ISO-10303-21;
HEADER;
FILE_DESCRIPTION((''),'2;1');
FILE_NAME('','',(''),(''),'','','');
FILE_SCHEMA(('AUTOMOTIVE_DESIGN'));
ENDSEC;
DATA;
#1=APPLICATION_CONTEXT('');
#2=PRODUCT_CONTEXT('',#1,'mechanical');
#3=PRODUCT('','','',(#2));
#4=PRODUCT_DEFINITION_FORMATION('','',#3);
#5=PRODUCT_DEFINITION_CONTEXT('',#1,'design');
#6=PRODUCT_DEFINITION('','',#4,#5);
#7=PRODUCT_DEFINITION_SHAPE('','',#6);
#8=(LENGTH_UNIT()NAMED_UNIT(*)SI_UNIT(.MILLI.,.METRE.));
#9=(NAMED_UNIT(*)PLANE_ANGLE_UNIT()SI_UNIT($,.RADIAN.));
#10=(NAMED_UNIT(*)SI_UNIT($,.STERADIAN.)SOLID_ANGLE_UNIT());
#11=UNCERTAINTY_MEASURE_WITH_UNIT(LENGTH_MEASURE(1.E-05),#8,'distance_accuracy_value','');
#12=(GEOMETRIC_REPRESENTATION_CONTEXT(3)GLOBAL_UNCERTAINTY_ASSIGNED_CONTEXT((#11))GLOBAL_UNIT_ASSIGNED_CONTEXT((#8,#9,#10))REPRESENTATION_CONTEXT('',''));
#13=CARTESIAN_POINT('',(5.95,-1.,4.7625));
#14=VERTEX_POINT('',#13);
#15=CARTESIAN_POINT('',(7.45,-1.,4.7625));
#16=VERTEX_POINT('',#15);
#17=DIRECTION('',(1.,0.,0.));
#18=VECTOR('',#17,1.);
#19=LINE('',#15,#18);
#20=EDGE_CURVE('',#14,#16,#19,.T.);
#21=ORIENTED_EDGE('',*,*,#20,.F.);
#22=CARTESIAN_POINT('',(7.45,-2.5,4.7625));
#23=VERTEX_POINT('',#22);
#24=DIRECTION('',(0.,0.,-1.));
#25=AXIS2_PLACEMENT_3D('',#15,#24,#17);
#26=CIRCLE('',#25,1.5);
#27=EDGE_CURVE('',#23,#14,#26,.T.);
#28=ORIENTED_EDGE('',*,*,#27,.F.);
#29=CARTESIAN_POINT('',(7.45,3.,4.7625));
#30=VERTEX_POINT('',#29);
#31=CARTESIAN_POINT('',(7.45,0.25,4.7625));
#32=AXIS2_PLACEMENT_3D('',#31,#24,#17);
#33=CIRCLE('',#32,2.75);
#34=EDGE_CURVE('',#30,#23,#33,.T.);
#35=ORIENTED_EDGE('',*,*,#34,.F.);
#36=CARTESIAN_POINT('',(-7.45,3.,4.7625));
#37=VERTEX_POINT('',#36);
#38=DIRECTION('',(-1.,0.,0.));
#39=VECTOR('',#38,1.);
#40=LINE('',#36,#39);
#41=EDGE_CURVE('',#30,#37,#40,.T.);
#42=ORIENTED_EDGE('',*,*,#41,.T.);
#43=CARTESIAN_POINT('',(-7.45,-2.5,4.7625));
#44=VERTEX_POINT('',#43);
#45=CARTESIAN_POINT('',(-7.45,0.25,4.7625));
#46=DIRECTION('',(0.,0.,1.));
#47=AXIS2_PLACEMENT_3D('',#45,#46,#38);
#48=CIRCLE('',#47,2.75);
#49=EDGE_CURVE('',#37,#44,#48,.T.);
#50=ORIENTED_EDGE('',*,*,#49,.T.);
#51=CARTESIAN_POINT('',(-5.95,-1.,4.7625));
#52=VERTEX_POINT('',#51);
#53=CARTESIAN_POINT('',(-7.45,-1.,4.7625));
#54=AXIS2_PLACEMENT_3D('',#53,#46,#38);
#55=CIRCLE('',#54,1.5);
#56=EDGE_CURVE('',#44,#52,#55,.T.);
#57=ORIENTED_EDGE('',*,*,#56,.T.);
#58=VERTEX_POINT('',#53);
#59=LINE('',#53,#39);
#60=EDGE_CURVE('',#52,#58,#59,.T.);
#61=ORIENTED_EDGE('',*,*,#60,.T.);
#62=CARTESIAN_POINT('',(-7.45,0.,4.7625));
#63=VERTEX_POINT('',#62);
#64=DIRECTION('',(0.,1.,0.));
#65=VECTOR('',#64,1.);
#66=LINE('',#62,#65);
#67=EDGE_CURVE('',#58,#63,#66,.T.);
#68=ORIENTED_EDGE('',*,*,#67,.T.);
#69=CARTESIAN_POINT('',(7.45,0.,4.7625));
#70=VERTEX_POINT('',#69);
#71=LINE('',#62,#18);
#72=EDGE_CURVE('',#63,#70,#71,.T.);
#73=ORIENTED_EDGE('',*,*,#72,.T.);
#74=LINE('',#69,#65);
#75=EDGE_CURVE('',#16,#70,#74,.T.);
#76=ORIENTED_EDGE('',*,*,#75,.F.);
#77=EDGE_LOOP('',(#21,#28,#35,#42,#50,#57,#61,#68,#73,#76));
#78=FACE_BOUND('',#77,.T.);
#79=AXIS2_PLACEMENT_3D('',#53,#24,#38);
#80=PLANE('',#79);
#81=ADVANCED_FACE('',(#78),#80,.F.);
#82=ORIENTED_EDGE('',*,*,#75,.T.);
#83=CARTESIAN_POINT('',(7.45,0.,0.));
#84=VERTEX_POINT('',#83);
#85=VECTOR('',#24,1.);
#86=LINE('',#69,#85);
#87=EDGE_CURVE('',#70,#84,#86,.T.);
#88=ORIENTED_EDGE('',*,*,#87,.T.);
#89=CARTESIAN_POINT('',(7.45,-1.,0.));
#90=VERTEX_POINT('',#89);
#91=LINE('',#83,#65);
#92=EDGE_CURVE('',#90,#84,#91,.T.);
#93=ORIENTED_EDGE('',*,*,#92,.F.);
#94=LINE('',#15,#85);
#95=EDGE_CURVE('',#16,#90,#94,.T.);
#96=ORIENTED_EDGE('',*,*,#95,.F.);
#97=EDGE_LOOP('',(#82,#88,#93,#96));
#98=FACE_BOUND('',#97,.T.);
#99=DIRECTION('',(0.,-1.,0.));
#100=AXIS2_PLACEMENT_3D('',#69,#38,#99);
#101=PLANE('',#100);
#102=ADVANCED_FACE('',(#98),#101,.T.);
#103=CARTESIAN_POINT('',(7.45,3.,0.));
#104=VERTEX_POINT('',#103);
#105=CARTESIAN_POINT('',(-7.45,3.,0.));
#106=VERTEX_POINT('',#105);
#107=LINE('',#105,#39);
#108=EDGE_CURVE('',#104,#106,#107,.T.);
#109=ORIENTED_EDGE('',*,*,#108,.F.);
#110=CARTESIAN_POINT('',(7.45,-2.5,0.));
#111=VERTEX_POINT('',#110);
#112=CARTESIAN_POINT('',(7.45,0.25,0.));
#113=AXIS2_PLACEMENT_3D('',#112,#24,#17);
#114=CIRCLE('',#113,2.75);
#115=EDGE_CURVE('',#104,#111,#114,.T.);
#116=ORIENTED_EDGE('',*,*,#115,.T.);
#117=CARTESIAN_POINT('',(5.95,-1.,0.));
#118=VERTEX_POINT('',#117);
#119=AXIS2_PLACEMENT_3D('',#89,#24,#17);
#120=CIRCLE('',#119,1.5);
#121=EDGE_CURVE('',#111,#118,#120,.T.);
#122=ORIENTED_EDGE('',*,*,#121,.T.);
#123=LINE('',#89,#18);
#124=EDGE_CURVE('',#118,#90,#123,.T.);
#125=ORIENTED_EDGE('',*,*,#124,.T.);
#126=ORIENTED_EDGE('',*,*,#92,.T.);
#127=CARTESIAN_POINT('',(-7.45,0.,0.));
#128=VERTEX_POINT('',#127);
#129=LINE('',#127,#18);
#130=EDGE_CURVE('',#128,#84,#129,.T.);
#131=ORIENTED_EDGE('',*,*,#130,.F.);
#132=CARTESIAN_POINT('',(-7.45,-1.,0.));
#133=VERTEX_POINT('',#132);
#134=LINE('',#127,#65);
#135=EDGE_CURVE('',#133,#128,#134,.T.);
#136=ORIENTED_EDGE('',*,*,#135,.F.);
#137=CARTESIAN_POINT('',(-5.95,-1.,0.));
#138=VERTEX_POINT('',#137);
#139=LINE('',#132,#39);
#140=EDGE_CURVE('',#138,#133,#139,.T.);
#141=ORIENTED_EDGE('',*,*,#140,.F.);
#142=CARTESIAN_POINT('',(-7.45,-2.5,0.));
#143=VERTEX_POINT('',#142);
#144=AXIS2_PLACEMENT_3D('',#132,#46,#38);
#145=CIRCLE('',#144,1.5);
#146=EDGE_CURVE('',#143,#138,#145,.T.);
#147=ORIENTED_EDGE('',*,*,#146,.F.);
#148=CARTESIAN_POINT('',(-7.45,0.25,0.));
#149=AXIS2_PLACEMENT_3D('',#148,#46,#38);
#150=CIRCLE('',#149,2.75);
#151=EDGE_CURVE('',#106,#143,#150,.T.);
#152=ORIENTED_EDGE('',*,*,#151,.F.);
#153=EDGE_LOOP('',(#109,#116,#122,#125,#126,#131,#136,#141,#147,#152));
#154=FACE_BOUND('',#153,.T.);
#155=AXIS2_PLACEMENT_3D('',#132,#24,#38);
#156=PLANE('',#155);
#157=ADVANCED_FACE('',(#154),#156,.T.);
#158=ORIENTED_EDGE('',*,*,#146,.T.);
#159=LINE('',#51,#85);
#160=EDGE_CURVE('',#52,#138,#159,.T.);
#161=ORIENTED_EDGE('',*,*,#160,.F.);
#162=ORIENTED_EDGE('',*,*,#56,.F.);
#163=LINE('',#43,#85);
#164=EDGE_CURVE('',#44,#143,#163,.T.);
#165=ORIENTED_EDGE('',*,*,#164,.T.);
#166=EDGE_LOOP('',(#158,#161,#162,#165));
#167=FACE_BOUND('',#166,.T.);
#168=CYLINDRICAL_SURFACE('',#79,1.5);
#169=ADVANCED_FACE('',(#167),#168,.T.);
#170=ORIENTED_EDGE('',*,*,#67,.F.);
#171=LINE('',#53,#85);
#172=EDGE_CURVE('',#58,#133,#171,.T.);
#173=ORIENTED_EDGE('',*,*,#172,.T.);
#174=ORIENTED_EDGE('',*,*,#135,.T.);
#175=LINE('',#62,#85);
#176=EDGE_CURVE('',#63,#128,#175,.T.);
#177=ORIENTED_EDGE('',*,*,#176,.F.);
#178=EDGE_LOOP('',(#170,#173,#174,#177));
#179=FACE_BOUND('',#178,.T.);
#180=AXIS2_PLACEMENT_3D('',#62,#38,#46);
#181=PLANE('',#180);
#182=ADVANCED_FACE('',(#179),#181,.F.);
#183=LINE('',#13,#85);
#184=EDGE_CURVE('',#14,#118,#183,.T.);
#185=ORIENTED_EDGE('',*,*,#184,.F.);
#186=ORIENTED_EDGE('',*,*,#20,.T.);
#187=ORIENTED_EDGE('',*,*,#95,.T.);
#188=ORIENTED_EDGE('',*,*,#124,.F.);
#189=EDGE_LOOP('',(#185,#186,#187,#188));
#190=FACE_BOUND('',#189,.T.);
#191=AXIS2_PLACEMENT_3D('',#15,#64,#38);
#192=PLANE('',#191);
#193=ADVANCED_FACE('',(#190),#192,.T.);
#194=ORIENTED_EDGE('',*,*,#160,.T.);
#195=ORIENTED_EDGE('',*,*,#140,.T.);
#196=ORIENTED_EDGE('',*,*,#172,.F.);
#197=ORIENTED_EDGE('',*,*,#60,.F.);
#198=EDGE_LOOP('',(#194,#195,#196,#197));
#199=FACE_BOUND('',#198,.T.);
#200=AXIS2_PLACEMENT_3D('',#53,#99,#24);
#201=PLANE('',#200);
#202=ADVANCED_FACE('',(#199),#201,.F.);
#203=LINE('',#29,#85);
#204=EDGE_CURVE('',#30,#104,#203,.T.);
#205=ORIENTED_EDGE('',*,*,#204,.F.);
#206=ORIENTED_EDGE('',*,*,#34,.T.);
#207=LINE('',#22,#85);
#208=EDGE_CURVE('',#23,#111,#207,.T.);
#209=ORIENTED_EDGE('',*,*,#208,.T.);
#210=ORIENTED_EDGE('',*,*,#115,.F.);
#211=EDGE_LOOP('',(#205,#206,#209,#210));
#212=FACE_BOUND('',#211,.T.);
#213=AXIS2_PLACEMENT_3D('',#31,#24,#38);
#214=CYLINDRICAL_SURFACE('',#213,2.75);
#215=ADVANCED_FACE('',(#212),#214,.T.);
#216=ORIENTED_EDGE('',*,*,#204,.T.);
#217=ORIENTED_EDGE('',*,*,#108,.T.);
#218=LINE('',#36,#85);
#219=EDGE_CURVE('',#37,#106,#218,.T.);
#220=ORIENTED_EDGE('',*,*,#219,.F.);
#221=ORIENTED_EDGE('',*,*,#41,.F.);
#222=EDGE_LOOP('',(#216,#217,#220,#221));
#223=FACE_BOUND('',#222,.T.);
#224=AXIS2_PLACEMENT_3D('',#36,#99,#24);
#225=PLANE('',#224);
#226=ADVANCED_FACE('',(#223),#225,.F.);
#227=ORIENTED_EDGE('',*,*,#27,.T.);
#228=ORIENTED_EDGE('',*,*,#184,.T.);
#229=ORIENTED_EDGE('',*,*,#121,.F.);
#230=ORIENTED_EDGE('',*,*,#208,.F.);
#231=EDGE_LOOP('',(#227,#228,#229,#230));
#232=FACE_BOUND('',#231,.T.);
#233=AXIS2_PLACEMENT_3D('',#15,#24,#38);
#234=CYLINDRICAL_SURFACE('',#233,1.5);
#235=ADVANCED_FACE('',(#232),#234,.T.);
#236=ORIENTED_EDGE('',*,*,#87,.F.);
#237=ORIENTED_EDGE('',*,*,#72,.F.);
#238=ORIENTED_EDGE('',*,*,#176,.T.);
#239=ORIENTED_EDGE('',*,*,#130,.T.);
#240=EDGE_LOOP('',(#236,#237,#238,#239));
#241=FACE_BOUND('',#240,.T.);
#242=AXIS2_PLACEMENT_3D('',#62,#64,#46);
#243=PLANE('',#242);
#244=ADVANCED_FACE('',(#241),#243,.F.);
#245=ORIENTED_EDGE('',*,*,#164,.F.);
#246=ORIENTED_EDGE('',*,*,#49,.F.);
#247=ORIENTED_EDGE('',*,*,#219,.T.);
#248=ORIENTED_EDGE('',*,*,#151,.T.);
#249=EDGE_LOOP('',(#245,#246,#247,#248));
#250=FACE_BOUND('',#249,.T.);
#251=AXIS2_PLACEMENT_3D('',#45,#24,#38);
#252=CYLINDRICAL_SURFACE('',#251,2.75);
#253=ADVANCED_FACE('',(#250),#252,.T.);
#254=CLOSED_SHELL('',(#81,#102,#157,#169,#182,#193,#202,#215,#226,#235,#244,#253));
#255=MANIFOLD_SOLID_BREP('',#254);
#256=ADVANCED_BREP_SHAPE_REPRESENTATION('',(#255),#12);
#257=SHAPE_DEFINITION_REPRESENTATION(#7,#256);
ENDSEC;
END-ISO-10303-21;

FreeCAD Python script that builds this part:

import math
import FreeCAD as App
import Part
import Sketcher

doc = App.newDocument("Part")
body = doc.addObject("PartDesign::Body", "Body")

# Sketch on XY plane
sketch1 = body.newObject("Sketcher::SketchObject", "Sketch")
sketch1.AttachmentSupport = (doc.getObject("XY_Plane"), [""])
sketch1.MapMode = "FlatFace"
sketch1.addGeometry([
    Part.LineSegment(App.Vector(0, 3, 0), App.Vector(-7.45, 3, 0)),  # 0
    Part.ArcOfCircle(Part.Circle(App.Vector(-7.45, 0.25, 0), App.Vector(0, 0, 1), 2.75), math.radians(90), math.radians(270)),  # 1
    Part.ArcOfCircle(Part.Circle(App.Vector(-7.45, -1, 0), App.Vector(0, 0, 1), 1.5), math.radians(-90), math.radians(0)),  # 2
    Part.LineSegment(App.Vector(-5.95, -1, 0), App.Vector(-7.45, -1, 0)),  # 3
    Part.LineSegment(App.Vector(-7.45, -1, 0), App.Vector(-7.45, 0, 0)),  # 4
    Part.LineSegment(App.Vector(-7.45, 0, 0), App.Vector(0, 0, 0)),  # 5
    Part.LineSegment(App.Vector(0, 0, 0), App.Vector(0, 3, 0)),  # 6
], False)
sketch1.addConstraint([
    Sketcher.Constraint("Tangent", 0, 2, 1, 1),
    Sketcher.Constraint("Tangent", 1, 2, 2, 1),
    Sketcher.Constraint("Coincident", 2, 2, 3, 1),
    Sketcher.Constraint("Coincident", 3, 2, 4, 1),
    Sketcher.Constraint("Coincident", 4, 2, 5, 1),
    Sketcher.Constraint("Coincident", 5, 2, 6, 1),
    Sketcher.Constraint("Coincident", 6, 2, 0, 1),
    Sketcher.Constraint("Horizontal", 0),
    Sketcher.Constraint("Horizontal", 3),
    Sketcher.Constraint("Vertical", 4),
    Sketcher.Constraint("Horizontal", 5),
    Sketcher.Constraint("Vertical", 6),
    Sketcher.Constraint("Coincident", 5, 2, -1, 1),
    Sketcher.Constraint("Coincident", 3, 2, 2, 3),
    Sketcher.Constraint("Vertical", 1, 3, 2, 3),
    Sketcher.Constraint("Radius", 2, 1.5),
    Sketcher.Constraint("DistanceY", 4, 1, 4, 2, 1.0),
    Sketcher.Constraint("DistanceY", 6, 1, 6, 2, 3.0),
    Sketcher.Constraint("DistanceX", 0, 2, 0, 1, 7.45),
])
pad1 = body.newObject("PartDesign::Pad", "Pad")
pad1.Profile = sketch1
pad1.Length = 4.7625
doc.recompute()

mirrored = body.newObject("PartDesign::Mirrored", "Mirrored")
mirrored.Originals = [pad1]
mirrored.MirrorPlane = (doc.getObject("YZ_Plane"), [""])
body.Tip = mirrored

doc.recompute()
